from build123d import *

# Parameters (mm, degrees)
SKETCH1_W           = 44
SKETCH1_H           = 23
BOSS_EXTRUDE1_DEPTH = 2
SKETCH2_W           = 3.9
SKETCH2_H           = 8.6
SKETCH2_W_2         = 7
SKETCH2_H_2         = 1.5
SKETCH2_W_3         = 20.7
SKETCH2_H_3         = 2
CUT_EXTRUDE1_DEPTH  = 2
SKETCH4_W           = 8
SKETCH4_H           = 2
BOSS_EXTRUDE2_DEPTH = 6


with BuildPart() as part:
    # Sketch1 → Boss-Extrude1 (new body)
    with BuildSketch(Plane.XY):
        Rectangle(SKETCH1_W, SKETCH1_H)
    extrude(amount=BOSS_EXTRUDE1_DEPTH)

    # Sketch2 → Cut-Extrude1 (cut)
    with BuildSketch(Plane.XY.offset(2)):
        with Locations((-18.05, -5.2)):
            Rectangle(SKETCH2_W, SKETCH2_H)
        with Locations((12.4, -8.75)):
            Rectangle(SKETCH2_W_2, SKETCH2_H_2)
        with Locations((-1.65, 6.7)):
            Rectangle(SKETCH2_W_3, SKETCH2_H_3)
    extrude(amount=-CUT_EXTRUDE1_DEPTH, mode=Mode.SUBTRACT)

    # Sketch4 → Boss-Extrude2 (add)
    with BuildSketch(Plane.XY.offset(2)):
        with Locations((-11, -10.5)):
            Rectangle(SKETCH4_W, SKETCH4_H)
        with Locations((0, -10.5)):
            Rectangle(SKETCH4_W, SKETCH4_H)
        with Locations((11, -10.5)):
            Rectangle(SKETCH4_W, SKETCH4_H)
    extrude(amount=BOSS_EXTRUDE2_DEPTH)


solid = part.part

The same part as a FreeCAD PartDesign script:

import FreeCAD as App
import Part
import Sketcher


def add_polygon(sketch, points):
    """Adds a closed chain of lines whose ends are joined by coincident constraints."""
    first, n = sketch.GeometryCount, len(points)
    for a, b in zip(points, points[1:] + points[:1]):
        sketch.addGeometry(Part.LineSegment(App.Vector(*a, 0), App.Vector(*b, 0)), False)
    for i in range(n):
        sketch.addConstraint(Sketcher.Constraint("Coincident", first + i, 2, first + (i + 1) % n, 1))

doc = App.newDocument("Part")
body = doc.addObject("PartDesign::Body", "Body")

# Sketch on XY plane
sketch1 = body.newObject("Sketcher::SketchObject", "Sketch")
sketch1.AttachmentSupport = (doc.getObject("XY_Plane"), [""])
sketch1.MapMode = "FlatFace"
add_polygon(sketch1, [(-22, 12), (-22, -12), (22, -12), (22, 12)])  # lines 0-3
sketch1.addConstraint(Sketcher.Constraint("Vertical", 0))
sketch1.addConstraint(Sketcher.Constraint("Horizontal", 1))
sketch1.addConstraint(Sketcher.Constraint("Vertical", 2))
sketch1.addConstraint(Sketcher.Constraint("Horizontal", 3))
sketch1.addConstraint(Sketcher.Constraint("Symmetric", 0, 2, 2, 2, -1, 1))
sketch1.addConstraint(Sketcher.Constraint("DistanceX", 1, 1, 1, 2, 44.0))
sketch1.addConstraint(Sketcher.Constraint("DistanceY", 0, 2, 0, 1, 23.0))
pad1 = body.newObject("PartDesign::Pad", "Pad")
pad1.Profile = sketch1
pad1.Length = 2

# Sketch on XY plane
sketch2 = body.newObject("Sketcher::SketchObject", "Sketch001")
sketch2.AttachmentSupport = (doc.getObject("XY_Plane"), [""])
sketch2.MapMode = "FlatFace"
sketch2.AttachmentOffset = App.Placement(App.Vector(0, 0, 2), App.Rotation())
add_polygon(sketch2, [(-20, -0.9), (-20, -9.5), (-16.1, -9.5), (-16.1, -0.9)])  # lines 0-3
add_polygon(sketch2, [(8.9, -8), (8.9, -9.5), (15.9, -9.5), (15.9, -8)])  # lines 4-7
add_polygon(sketch2, [(-12, 7.7), (-12, 5.7), (8.7, 5.7), (8.7, 7.7)])  # lines 8-11
sketch2.addConstraint(Sketcher.Constraint("Vertical", 0))
sketch2.addConstraint(Sketcher.Constraint("Horizontal", 1))
sketch2.addConstraint(Sketcher.Constraint("Vertical", 2))
sketch2.addConstraint(Sketcher.Constraint("Horizontal", 3))
sketch2.addConstraint(Sketcher.Constraint("Vertical", 4))
sketch2.addConstraint(Sketcher.Constraint("Horizontal", 5))
sketch2.addConstraint(Sketcher.Constraint("Vertical", 6))
sketch2.addConstraint(Sketcher.Constraint("Horizontal", 7))
sketch2.addConstraint(Sketcher.Constraint("Vertical", 8))
sketch2.addConstraint(Sketcher.Constraint("Horizontal", 9))
sketch2.addConstraint(Sketcher.Constraint("Vertical", 10))
sketch2.addConstraint(Sketcher.Constraint("Horizontal", 11))
sketch2.addConstraint(Sketcher.Constraint("Horizontal", 1, 2, 4, 2))
sketch2.addConstraint(Sketcher.Constraint("DistanceX", 5, 1, 5, 2, 7.0))
sketch2.addConstraint(Sketcher.Constraint("DistanceY", 8, 2, 8, 1, 2.0))
sketch2.addConstraint(Sketcher.Constraint("DistanceX", 1, 1, 1, 2, 3.9))
sketch2.addConstraint(Sketcher.Constraint("DistanceX", 9, 1, 9, 2, 20.7))
sketch2.addConstraint(Sketcher.Constraint("DistanceY", 0, 2, 0, 1, 8.6))
sketch2.addConstraint(Sketcher.Constraint("DistanceY", 4, 2, 4, 1, 1.5))
sketch2.addConstraint(Sketcher.Constraint("DistanceX", 0, 2, -1, 1, 20.0))
sketch2.addConstraint(Sketcher.Constraint("DistanceY", 6, 2, -1, 1, 8.0))
sketch2.addConstraint(Sketcher.Constraint("DistanceX", 8, 2, -1, 1, 12.0))
sketch2.addConstraint(Sketcher.Constraint("DistanceX", 1, 2, 4, 2, 25.0))
sketch2.addConstraint(Sketcher.Constraint("DistanceY", -1, 1, 8, 2, 5.7))
pocket1 = body.newObject("PartDesign::Pocket", "Pocket")
pocket1.Profile = sketch2
pocket1.Length = 2

# Sketch on XY plane
sketch3 = body.newObject("Sketcher::SketchObject", "Sketch002")
sketch3.AttachmentSupport = (doc.getObject("XY_Plane"), [""])
sketch3.MapMode = "FlatFace"
sketch3.AttachmentOffset = App.Placement(App.Vector(0, 0, 2), App.Rotation())
add_polygon(sketch3, [(-15, -9.5), (-15, -11.5), (-7, -11.5), (-7, -9.5)])  # lines 0-3
add_polygon(sketch3, [(-4, -9.5), (-4, -11.5), (4, -11.5), (4, -9.5)])  # lines 4-7
add_polygon(sketch3, [(7, -9.5), (7, -11.5), (15, -11.5), (15, -9.5)])  # lines 8-11
sketch3.addConstraint(Sketcher.Constraint("Vertical", 0))
sketch3.addConstraint(Sketcher.Constraint("Horizontal", 1))
sketch3.addConstraint(Sketcher.Constraint("Vertical", 2))
sketch3.addConstraint(Sketcher.Constraint("Horizontal", 3))
sketch3.addConstraint(Sketcher.Constraint("Vertical", 4))
sketch3.addConstraint(Sketcher.Constraint("Horizontal", 5))
sketch3.addConstraint(Sketcher.Constraint("Vertical", 6))
sketch3.addConstraint(Sketcher.Constraint("Horizontal", 7))
sketch3.addConstraint(Sketcher.Constraint("Vertical", 8))
sketch3.addConstraint(Sketcher.Constraint("Horizontal", 9))
sketch3.addConstraint(Sketcher.Constraint("Vertical", 10))
sketch3.addConstraint(Sketcher.Constraint("Horizontal", 11))
sketch3.addConstraint(Sketcher.Constraint("Symmetric", 1, 2, 8, 2, -2))
sketch3.addConstraint(Sketcher.Constraint("Symmetric", 3, 2, 10, 2, -2))
sketch3.addConstraint(Sketcher.Constraint("Horizontal", 1, 2, 4, 2))
sketch3.addConstraint(Sketcher.Constraint("Horizontal", 3, 2, 6, 2))
sketch3.addConstraint(Sketcher.Constraint("Equal", 3, 5))
sketch3.addConstraint(Sketcher.Constraint("DistanceX", 1, 1, 1, 2, 8.0))
sketch3.addConstraint(Sketcher.Constraint("DistanceY", 0, 2, 0, 1, 2.0))
sketch3.addConstraint(Sketcher.Constraint("DistanceX", 0, 2, -1, 1, 15.0))
sketch3.addConstraint(Sketcher.Constraint("DistanceX", 4, 2, -1, 1, 4.0))
sketch3.addConstraint(Sketcher.Constraint("DistanceY", 0, 2, -1, 1, 11.5))
pad2 = body.newObject("PartDesign::Pad", "Pad001")
pad2.Profile = sketch3
pad2.Length = 6

doc.recompute()
